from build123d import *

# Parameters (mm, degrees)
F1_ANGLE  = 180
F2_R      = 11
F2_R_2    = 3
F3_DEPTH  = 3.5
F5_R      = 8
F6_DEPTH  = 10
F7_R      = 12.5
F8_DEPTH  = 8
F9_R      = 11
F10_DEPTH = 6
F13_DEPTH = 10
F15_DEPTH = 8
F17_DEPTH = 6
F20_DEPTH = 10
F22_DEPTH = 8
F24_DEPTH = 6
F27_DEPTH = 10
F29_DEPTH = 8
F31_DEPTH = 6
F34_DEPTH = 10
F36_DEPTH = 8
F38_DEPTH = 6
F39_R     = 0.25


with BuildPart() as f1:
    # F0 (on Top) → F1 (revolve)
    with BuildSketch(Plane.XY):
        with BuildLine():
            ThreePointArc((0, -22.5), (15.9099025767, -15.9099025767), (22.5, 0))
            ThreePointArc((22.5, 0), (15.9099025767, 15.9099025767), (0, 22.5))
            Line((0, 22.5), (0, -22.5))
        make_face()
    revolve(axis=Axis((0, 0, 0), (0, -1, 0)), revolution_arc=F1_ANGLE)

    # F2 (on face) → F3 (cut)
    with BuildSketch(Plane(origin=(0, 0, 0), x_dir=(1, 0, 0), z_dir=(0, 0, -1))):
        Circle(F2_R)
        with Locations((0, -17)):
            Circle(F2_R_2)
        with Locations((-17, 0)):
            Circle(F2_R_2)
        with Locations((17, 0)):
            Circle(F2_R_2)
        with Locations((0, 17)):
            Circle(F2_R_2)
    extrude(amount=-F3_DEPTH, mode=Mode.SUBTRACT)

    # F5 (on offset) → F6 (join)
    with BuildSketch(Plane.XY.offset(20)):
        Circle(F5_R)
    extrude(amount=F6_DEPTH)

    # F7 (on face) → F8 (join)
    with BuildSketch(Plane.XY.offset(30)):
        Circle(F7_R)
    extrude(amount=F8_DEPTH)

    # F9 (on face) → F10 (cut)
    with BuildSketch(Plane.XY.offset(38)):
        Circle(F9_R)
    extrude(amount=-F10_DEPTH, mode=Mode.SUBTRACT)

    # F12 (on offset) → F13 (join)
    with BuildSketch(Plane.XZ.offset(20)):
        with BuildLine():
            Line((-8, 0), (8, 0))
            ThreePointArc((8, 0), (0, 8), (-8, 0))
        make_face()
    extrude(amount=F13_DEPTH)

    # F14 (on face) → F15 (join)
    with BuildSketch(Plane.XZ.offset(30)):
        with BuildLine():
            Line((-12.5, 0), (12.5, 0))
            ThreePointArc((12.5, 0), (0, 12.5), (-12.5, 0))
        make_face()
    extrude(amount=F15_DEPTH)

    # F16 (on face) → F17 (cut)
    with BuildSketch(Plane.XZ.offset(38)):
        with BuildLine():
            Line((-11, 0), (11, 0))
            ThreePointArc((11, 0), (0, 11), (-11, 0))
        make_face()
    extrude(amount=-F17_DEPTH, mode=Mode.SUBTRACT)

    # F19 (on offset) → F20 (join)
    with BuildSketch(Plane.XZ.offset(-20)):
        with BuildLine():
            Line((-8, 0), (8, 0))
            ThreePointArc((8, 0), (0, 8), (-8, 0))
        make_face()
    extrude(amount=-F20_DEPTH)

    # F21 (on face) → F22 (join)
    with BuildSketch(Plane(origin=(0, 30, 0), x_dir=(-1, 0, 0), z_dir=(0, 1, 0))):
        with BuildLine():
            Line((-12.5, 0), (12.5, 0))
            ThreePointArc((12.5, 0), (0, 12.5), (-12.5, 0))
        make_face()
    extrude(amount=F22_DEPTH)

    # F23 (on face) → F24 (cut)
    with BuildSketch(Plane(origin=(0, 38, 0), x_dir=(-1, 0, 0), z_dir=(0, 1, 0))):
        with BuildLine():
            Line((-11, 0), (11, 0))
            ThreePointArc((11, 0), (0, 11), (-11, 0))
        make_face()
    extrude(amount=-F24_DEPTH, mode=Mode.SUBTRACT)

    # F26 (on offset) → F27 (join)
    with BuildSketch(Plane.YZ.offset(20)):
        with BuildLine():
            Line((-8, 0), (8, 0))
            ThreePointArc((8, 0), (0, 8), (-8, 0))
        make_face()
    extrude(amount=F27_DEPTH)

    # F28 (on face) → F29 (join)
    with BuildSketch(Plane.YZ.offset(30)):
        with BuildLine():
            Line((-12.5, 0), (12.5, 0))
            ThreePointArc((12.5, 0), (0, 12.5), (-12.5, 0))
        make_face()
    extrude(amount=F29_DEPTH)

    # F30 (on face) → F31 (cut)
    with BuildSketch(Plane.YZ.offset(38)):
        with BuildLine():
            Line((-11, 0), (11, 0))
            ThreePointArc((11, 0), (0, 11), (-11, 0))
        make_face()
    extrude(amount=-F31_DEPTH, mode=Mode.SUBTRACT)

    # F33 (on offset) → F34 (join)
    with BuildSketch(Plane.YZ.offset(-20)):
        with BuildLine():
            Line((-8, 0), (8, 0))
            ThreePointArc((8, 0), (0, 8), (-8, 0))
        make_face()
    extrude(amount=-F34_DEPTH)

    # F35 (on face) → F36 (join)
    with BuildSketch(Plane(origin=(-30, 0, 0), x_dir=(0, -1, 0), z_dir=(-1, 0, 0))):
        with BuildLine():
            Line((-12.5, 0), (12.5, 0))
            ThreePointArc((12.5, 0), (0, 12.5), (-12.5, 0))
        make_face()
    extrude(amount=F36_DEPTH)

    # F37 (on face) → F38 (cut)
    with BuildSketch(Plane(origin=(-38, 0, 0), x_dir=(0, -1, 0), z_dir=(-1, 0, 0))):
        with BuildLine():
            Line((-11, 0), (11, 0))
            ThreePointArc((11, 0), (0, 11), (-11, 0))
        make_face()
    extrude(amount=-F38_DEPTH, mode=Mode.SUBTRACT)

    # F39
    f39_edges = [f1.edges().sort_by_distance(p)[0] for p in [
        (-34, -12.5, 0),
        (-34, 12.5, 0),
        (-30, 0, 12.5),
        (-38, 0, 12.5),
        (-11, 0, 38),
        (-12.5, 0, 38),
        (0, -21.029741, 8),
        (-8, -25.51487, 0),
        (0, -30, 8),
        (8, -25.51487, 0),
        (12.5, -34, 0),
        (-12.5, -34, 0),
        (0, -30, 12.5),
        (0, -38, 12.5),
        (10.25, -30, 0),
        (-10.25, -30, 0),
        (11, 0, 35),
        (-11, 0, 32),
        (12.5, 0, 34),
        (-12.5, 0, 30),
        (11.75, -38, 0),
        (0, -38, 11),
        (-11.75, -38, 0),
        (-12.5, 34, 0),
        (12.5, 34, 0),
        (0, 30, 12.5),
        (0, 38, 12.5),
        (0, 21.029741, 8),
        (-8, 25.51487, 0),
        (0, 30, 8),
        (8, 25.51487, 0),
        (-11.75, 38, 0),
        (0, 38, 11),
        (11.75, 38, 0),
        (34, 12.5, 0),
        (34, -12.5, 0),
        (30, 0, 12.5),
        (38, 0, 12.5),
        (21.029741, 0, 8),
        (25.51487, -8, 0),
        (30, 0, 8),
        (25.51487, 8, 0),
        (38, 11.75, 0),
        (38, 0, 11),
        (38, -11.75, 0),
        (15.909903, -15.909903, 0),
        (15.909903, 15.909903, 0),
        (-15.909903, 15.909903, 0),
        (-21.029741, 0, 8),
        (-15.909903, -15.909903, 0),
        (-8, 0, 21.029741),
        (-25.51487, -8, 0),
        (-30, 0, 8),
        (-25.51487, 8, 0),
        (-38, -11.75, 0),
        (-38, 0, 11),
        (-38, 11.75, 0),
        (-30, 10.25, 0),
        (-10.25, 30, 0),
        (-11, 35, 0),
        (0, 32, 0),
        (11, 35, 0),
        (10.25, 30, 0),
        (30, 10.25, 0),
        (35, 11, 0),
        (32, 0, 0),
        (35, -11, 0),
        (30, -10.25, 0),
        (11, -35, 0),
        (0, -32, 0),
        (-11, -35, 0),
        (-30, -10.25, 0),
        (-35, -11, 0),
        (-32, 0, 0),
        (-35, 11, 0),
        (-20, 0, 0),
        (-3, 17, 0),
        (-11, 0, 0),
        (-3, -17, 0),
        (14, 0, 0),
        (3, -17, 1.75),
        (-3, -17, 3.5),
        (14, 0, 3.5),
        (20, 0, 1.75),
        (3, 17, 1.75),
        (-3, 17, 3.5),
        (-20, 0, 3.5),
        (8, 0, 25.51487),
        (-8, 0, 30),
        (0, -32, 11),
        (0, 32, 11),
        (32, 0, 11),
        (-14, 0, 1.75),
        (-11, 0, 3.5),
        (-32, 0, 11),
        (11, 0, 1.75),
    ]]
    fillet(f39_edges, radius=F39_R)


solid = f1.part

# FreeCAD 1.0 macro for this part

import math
import FreeCAD as App
import Part
import Sketcher

doc = App.newDocument("Part")
body = doc.addObject("PartDesign::Body", "Body")

# Sketch on XY plane
sketch1 = doc.addObject("Sketcher::SketchObject", "Sketch")
body.addObject(sketch1)
sketch1.AttachmentSupport = (doc.XY_Plane, [""])
sketch1.MapMode = "FlatFace"
sketch1.addGeometry(Part.ArcOfCircle(Part.Circle(App.Vector(0, 0, 0), App.Vector(0, 0, 1), 22.5), math.radians(-90), math.radians(90)), False)
sketch1.addGeometry(Part.LineSegment(App.Vector(0, 22.5, 0), App.Vector(0, -22.5, 0)), False)
sketch1.addConstraint(Sketcher.Constraint("Coincident", 0, 1, 1, 2))
sketch1.addConstraint(Sketcher.Constraint("Coincident", 1, 1, 0, 2))
sketch1.addConstraint(Sketcher.Constraint("Vertical", 1))
sketch1.addConstraint(Sketcher.Constraint("Coincident", 0, 3, -1, 1))
sketch1.addConstraint(Sketcher.Constraint("PointOnObject", 0, 1, -2))
sketch1.addConstraint(Sketcher.Constraint("Radius", 0, 22.5))
revolution = doc.addObject("PartDesign::Revolution", "Revolution")
body.addObject(revolution)
revolution.Profile = sketch1
revolution.ReferenceAxis = (sketch1, ["V_Axis"])
revolution.Angle = 180
revolution.Reversed = True

# Sketch on XY plane
sketch2 = doc.addObject("Sketcher::SketchObject", "Sketch001")
body.addObject(sketch2)
sketch2.AttachmentSupport = (doc.XY_Plane, [""])
sketch2.MapMode = "FlatFace"
sketch2.addGeometry(Part.Circle(App.Vector(0, 0, 0), App.Vector(0, 0, 1), 11), False)
sketch2.addGeometry(Part.Circle(App.Vector(0, 17, 0), App.Vector(0, 0, 1), 3), False)
sketch2.addGeometry(Part.Circle(App.Vector(-17, 0, 0), App.Vector(0, 0, 1), 3), False)
sketch2.addGeometry(Part.Circle(App.Vector(17, 0, 0), App.Vector(0, 0, 1), 3), False)
sketch2.addGeometry(Part.Circle(App.Vector(0, -17, 0), App.Vector(0, 0, 1), 3), False)
sketch2.addConstraint(Sketcher.Constraint("Coincident", 0, 3, -1, 1))
sketch2.addConstraint(Sketcher.Constraint("Equal", 1, 2))
sketch2.addConstraint(Sketcher.Constraint("Equal", 2, 3))
sketch2.addConstraint(Sketcher.Constraint("Equal", 3, 4))
sketch2.addConstraint(Sketcher.Constraint("Symmetric", 2, 3, 3, 3, -1, 1))
sketch2.addConstraint(Sketcher.Constraint("Symmetric", 1, 3, 4, 3, -1, 1))
sketch2.addConstraint(Sketcher.Constraint("PointOnObject", 1, 3, -2))
sketch2.addConstraint(Sketcher.Constraint("PointOnObject", 2, 3, -1))
sketch2.addConstraint(Sketcher.Constraint("Diameter", 0, 22.0))
sketch2.addConstraint(Sketcher.Constraint("Diameter", 1, 6.0))
sketch2.addConstraint(Sketcher.Constraint("DistanceY", -1, 1, 1, 3, 17.0))
sketch2.addConstraint(Sketcher.Constraint("DistanceX", 2, 3, -1, 1, 17.0))
pocket1 = doc.addObject("PartDesign::Pocket", "Pocket")
body.addObject(pocket1)
pocket1.Profile = sketch2
pocket1.Length = 3.5
pocket1.Reversed = True

# Sketch on XY plane
sketch3 = doc.addObject("Sketcher::SketchObject", "Sketch002")
body.addObject(sketch3)
sketch3.AttachmentSupport = (doc.XY_Plane, [""])
sketch3.MapMode = "FlatFace"
sketch3.AttachmentOffset = App.Placement(App.Vector(0, 0, 20), App.Rotation())
sketch3.addGeometry(Part.Circle(App.Vector(0, 0, 0), App.Vector(0, 0, 1), 8), False)
sketch3.addConstraint(Sketcher.Constraint("Coincident", 0, 3, -1, 1))
sketch3.addConstraint(Sketcher.Constraint("Diameter", 0, 16.0))
pad1 = doc.addObject("PartDesign::Pad", "Pad")
body.addObject(pad1)
pad1.Profile = sketch3
pad1.Length = 10

# Sketch on XY plane
sketch4 = doc.addObject("Sketcher::SketchObject", "Sketch003")
body.addObject(sketch4)
sketch4.AttachmentSupport = (doc.XY_Plane, [""])
sketch4.MapMode = "FlatFace"
sketch4.AttachmentOffset = App.Placement(App.Vector(0, 0, 30), App.Rotation())
sketch4.addGeometry(Part.Circle(App.Vector(0, 0, 0), App.Vector(0, 0, 1), 12.5), False)
sketch4.addConstraint(Sketcher.Constraint("Coincident", 0, 3, -1, 1))
sketch4.addConstraint(Sketcher.Constraint("Diameter", 0, 25.0))
pad2 = doc.addObject("PartDesign::Pad", "Pad001")
body.addObject(pad2)
pad2.Profile = sketch4
pad2.Length = 8

# Sketch on XY plane
sketch5 = doc.addObject("Sketcher::SketchObject", "Sketch004")
body.addObject(sketch5)
sketch5.AttachmentSupport = (doc.XY_Plane, [""])
sketch5.MapMode = "FlatFace"
sketch5.AttachmentOffset = App.Placement(App.Vector(0, 0, 38), App.Rotation())
sketch5.addGeometry(Part.Circle(App.Vector(0, 0, 0), App.Vector(0, 0, 1), 11), False)
sketch5.addConstraint(Sketcher.Constraint("Coincident", 0, 3, -1, 1))
sketch5.addConstraint(Sketcher.Constraint("Diameter", 0, 22.0))
pocket2 = doc.addObject("PartDesign::Pocket", "Pocket001")
body.addObject(pocket2)
pocket2.Profile = sketch5
pocket2.Length = 6

# Sketch on XZ plane
sketch6 = doc.addObject("Sketcher::SketchObject", "Sketch005")
body.addObject(sketch6)
sketch6.AttachmentSupport = (doc.XZ_Plane, [""])
sketch6.MapMode = "FlatFace"
sketch6.AttachmentOffset = App.Placement(App.Vector(0, 0, 20), App.Rotation())
sketch6.addGeometry(Part.LineSegment(App.Vector(-8, 0, 0), App.Vector(8, 0, 0)), False)
sketch6.addGeometry(Part.ArcOfCircle(Part.Circle(App.Vector(0, 0, 0), App.Vector(0, 0, 1), 8), math.radians(0), math.radians(180)), False)
sketch6.addConstraint(Sketcher.Constraint("Coincident", 0, 1, 1, 2))
sketch6.addConstraint(Sketcher.Constraint("Coincident", 1, 1, 0, 2))
sketch6.addConstraint(Sketcher.Constraint("Horizontal", 0))
sketch6.addConstraint(Sketcher.Constraint("Coincident", 1, 3, -1, 1))
sketch6.addConstraint(Sketcher.Constraint("PointOnObject", 0, 1, -1))
sketch6.addConstraint(Sketcher.Constraint("Radius", 1, 8.0))
pad3 = doc.addObject("PartDesign::Pad", "Pad002")
body.addObject(pad3)
pad3.Profile = sketch6
pad3.Length = 10

# Sketch on XZ plane
sketch7 = doc.addObject("Sketcher::SketchObject", "Sketch006")
body.addObject(sketch7)
sketch7.AttachmentSupport = (doc.XZ_Plane, [""])
sketch7.MapMode = "FlatFace"
sketch7.AttachmentOffset = App.Placement(App.Vector(0, 0, 30), App.Rotation())
sketch7.addGeometry(Part.LineSegment(App.Vector(-12.5, 0, 0), App.Vector(12.5, 0, 0)), False)
sketch7.addGeometry(Part.ArcOfCircle(Part.Circle(App.Vector(0, 0, 0), App.Vector(0, 0, 1), 12.5), math.radians(0), math.radians(180)), False)
sketch7.addConstraint(Sketcher.Constraint("Coincident", 0, 1, 1, 2))
sketch7.addConstraint(Sketcher.Constraint("Coincident", 1, 1, 0, 2))
sketch7.addConstraint(Sketcher.Constraint("Horizontal", 0))
sketch7.addConstraint(Sketcher.Constraint("Coincident", 1, 3, -1, 1))
sketch7.addConstraint(Sketcher.Constraint("PointOnObject", 0, 1, -1))
sketch7.addConstraint(Sketcher.Constraint("Radius", 1, 12.5))
pad4 = doc.addObject("PartDesign::Pad", "Pad003")
body.addObject(pad4)
pad4.Profile = sketch7
pad4.Length = 8

# Sketch on XZ plane
sketch8 = doc.addObject("Sketcher::SketchObject", "Sketch007")
body.addObject(sketch8)
sketch8.AttachmentSupport = (doc.XZ_Plane, [""])
sketch8.MapMode = "FlatFace"
sketch8.AttachmentOffset = App.Placement(App.Vector(0, 0, 38), App.Rotation())
sketch8.addGeometry(Part.LineSegment(App.Vector(-11, 0, 0), App.Vector(11, 0, 0)), False)
sketch8.addGeometry(Part.ArcOfCircle(Part.Circle(App.Vector(0, 0, 0), App.Vector(0, 0, 1), 11), math.radians(0), math.radians(180)), False)
sketch8.addConstraint(Sketcher.Constraint("Coincident", 0, 1, 1, 2))
sketch8.addConstraint(Sketcher.Constraint("Coincident", 1, 1, 0, 2))
sketch8.addConstraint(Sketcher.Constraint("Horizontal", 0))
sketch8.addConstraint(Sketcher.Constraint("Coincident", 1, 3, -1, 1))
sketch8.addConstraint(Sketcher.Constraint("PointOnObject", 0, 1, -1))
sketch8.addConstraint(Sketcher.Constraint("Radius", 1, 11.0))
pocket3 = doc.addObject("PartDesign::Pocket", "Pocket002")
body.addObject(pocket3)
pocket3.Profile = sketch8
pocket3.Length = 6

# Sketch on XZ plane
sketch9 = doc.addObject("Sketcher::SketchObject", "Sketch008")
body.addObject(sketch9)
sketch9.AttachmentSupport = (doc.XZ_Plane, [""])
sketch9.MapMode = "FlatFace"
sketch9.AttachmentOffset = App.Placement(App.Vector(0, 0, -20), App.Rotation())
sketch9.addGeometry(Part.LineSegment(App.Vector(-8, 0, 0), App.Vector(8, 0, 0)), False)
sketch9.addGeometry(Part.ArcOfCircle(Part.Circle(App.Vector(0, 0, 0), App.Vector(0, 0, 1), 8), math.radians(0), math.radians(180)), False)
sketch9.addConstraint(Sketcher.Constraint("Coincident", 0, 1, 1, 2))
sketch9.addConstraint(Sketcher.Constraint("Coincident", 1, 1, 0, 2))
sketch9.addConstraint(Sketcher.Constraint("Horizontal", 0))
sketch9.addConstraint(Sketcher.Constraint("Coincident", 1, 3, -1, 1))
sketch9.addConstraint(Sketcher.Constraint("PointOnObject", 0, 1, -1))
sketch9.addConstraint(Sketcher.Constraint("Radius", 1, 8.0))
pad5 = doc.addObject("PartDesign::Pad", "Pad004")
body.addObject(pad5)
pad5.Profile = sketch9
pad5.Length = 10
pad5.Reversed = True

# Sketch on XZ plane
sketch10 = doc.addObject("Sketcher::SketchObject", "Sketch009")
body.addObject(sketch10)
sketch10.AttachmentSupport = (doc.XZ_Plane, [""])
sketch10.MapMode = "FlatFace"
sketch10.AttachmentOffset = App.Placement(App.Vector(0, 0, -30), App.Rotation())
sketch10.addGeometry(Part.LineSegment(App.Vector(12.5, 0, 0), App.Vector(-12.5, 0, 0)), False)
sketch10.addGeometry(Part.ArcOfCircle(Part.Circle(App.Vector(0, 0, 0), App.Vector(0, 0, 1), 12.5), math.radians(0), math.radians(180)), False)
sketch10.addConstraint(Sketcher.Constraint("Coincident", 0, 1, 1, 1))
sketch10.addConstraint(Sketcher.Constraint("Coincident", 1, 2, 0, 2))
sketch10.addConstraint(Sketcher.Constraint("Horizontal", 0))
sketch10.addConstraint(Sketcher.Constraint("Coincident", 1, 3, -1, 1))
sketch10.addConstraint(Sketcher.Constraint("PointOnObject", 0, 1, -1))
sketch10.addConstraint(Sketcher.Constraint("Radius", 1, 12.5))
pad6 = doc.addObject("PartDesign::Pad", "Pad005")
body.addObject(pad6)
pad6.Profile = sketch10
pad6.Length = 8
pad6.Reversed = True

# Sketch on XZ plane
sketch11 = doc.addObject("Sketcher::SketchObject", "Sketch010")
body.addObject(sketch11)
sketch11.AttachmentSupport = (doc.XZ_Plane, [""])
sketch11.MapMode = "FlatFace"
sketch11.AttachmentOffset = App.Placement(App.Vector(0, 0, -38), App.Rotation())
sketch11.addGeometry(Part.LineSegment(App.Vector(11, 0, 0), App.Vector(-11, 0, 0)), False)
sketch11.addGeometry(Part.ArcOfCircle(Part.Circle(App.Vector(0, 0, 0), App.Vector(0, 0, 1), 11), math.radians(0), math.radians(180)), False)
sketch11.addConstraint(Sketcher.Constraint("Coincident", 0, 1, 1, 1))
sketch11.addConstraint(Sketcher.Constraint("Coincident", 1, 2, 0, 2))
sketch11.addConstraint(Sketcher.Constraint("Horizontal", 0))
sketch11.addConstraint(Sketcher.Constraint("Coincident", 1, 3, -1, 1))
sketch11.addConstraint(Sketcher.Constraint("PointOnObject", 0, 1, -1))
sketch11.addConstraint(Sketcher.Constraint("Radius", 1, 11.0))
pocket4 = doc.addObject("PartDesign::Pocket", "Pocket003")
body.addObject(pocket4)
pocket4.Profile = sketch11
pocket4.Length = 6
pocket4.Reversed = True

# Sketch on YZ plane
sketch12 = doc.addObject("Sketcher::SketchObject", "Sketch011")
body.addObject(sketch12)
sketch12.AttachmentSupport = (doc.YZ_Plane, [""])
sketch12.MapMode = "FlatFace"
sketch12.AttachmentOffset = App.Placement(App.Vector(0, 0, 20), App.Rotation())
sketch12.addGeometry(Part.LineSegment(App.Vector(-8, 0, 0), App.Vector(8, 0, 0)), False)
sketch12.addGeometry(Part.ArcOfCircle(Part.Circle(App.Vector(0, 0, 0), App.Vector(0, 0, 1), 8), math.radians(0), math.radians(180)), False)
sketch12.addConstraint(Sketcher.Constraint("Coincident", 0, 1, 1, 2))
sketch12.addConstraint(Sketcher.Constraint("Coincident", 1, 1, 0, 2))
sketch12.addConstraint(Sketcher.Constraint("Horizontal", 0))
sketch12.addConstraint(Sketcher.Constraint("Coincident", 1, 3, -1, 1))
sketch12.addConstraint(Sketcher.Constraint("PointOnObject", 0, 1, -1))
sketch12.addConstraint(Sketcher.Constraint("Radius", 1, 8.0))
pad7 = doc.addObject("PartDesign::Pad", "Pad006")
body.addObject(pad7)
pad7.Profile = sketch12
pad7.Length = 10

# Sketch on YZ plane
sketch13 = doc.addObject("Sketcher::SketchObject", "Sketch012")
body.addObject(sketch13)
sketch13.AttachmentSupport = (doc.YZ_Plane, [""])
sketch13.MapMode = "FlatFace"
sketch13.AttachmentOffset = App.Placement(App.Vector(0, 0, 30), App.Rotation())
sketch13.addGeometry(Part.LineSegment(App.Vector(-12.5, 0, 0), App.Vector(12.5, 0, 0)), False)
sketch13.addGeometry(Part.ArcOfCircle(Part.Circle(App.Vector(0, 0, 0), App.Vector(0, 0, 1), 12.5), math.radians(0), math.radians(180)), False)
sketch13.addConstraint(Sketcher.Constraint("Coincident", 0, 1, 1, 2))
sketch13.addConstraint(Sketcher.Constraint("Coincident", 1, 1, 0, 2))
sketch13.addConstraint(Sketcher.Constraint("Horizontal", 0))
sketch13.addConstraint(Sketcher.Constraint("Coincident", 1, 3, -1, 1))
sketch13.addConstraint(Sketcher.Constraint("PointOnObject", 0, 1, -1))
sketch13.addConstraint(Sketcher.Constraint("Radius", 1, 12.5))
pad8 = doc.addObject("PartDesign::Pad", "Pad007")
body.addObject(pad8)
pad8.Profile = sketch13
pad8.Length = 8

# Sketch on YZ plane
sketch14 = doc.addObject("Sketcher::SketchObject", "Sketch013")
body.addObject(sketch14)
sketch14.AttachmentSupport = (doc.YZ_Plane, [""])
sketch14.MapMode = "FlatFace"
sketch14.AttachmentOffset = App.Placement(App.Vector(0, 0, 38), App.Rotation())
sketch14.addGeometry(Part.LineSegment(App.Vector(-11, 0, 0), App.Vector(11, 0, 0)), False)
sketch14.addGeometry(Part.ArcOfCircle(Part.Circle(App.Vector(0, 0, 0), App.Vector(0, 0, 1), 11), math.radians(0), math.radians(180)), False)
sketch14.addConstraint(Sketcher.Constraint("Coincident", 0, 1, 1, 2))
sketch14.addConstraint(Sketcher.Constraint("Coincident", 1, 1, 0, 2))
sketch14.addConstraint(Sketcher.Constraint("Horizontal", 0))
sketch14.addConstraint(Sketcher.Constraint("Coincident", 1, 3, -1, 1))
sketch14.addConstraint(Sketcher.Constraint("PointOnObject", 0, 1, -1))
sketch14.addConstraint(Sketcher.Constraint("Radius", 1, 11.0))
pocket5 = doc.addObject("PartDesign::Pocket", "Pocket004")
body.addObject(pocket5)
pocket5.Profile = sketch14
pocket5.Length = 6

# Sketch on YZ plane
sketch15 = doc.addObject("Sketcher::SketchObject", "Sketch014")
body.addObject(sketch15)
sketch15.AttachmentSupport = (doc.YZ_Plane, [""])
sketch15.MapMode = "FlatFace"
sketch15.AttachmentOffset = App.Placement(App.Vector(0, 0, -20), App.Rotation())
sketch15.addGeometry(Part.LineSegment(App.Vector(-8, 0, 0), App.Vector(8, 0, 0)), False)
sketch15.addGeometry(Part.ArcOfCircle(Part.Circle(App.Vector(0, 0, 0), App.Vector(0, 0, 1), 8), math.radians(0), math.radians(180)), False)
sketch15.addConstraint(Sketcher.Constraint("Coincident", 0, 1, 1, 2))
sketch15.addConstraint(Sketcher.Constraint("Coincident", 1, 1, 0, 2))
sketch15.addConstraint(Sketcher.Constraint("Horizontal", 0))
sketch15.addConstraint(Sketcher.Constraint("Coincident", 1, 3, -1, 1))
sketch15.addConstraint(Sketcher.Constraint("PointOnObject", 0, 1, -1))
sketch15.addConstraint(Sketcher.Constraint("Radius", 1, 8.0))
pad9 = doc.addObject("PartDesign::Pad", "Pad008")
body.addObject(pad9)
pad9.Profile = sketch15
pad9.Length = 10
pad9.Reversed = True

# Sketch on YZ plane
sketch16 = doc.addObject("Sketcher::SketchObject", "Sketch015")
body.addObject(sketch16)
sketch16.AttachmentSupport = (doc.YZ_Plane, [""])
sketch16.MapMode = "FlatFace"
sketch16.AttachmentOffset = App.Placement(App.Vector(0, 0, -30), App.Rotation())
sketch16.addGeometry(Part.LineSegment(App.Vector(12.5, 0, 0), App.Vector(-12.5, 0, 0)), False)
sketch16.addGeometry(Part.ArcOfCircle(Part.Circle(App.Vector(0, 0, 0), App.Vector(0, 0, 1), 12.5), math.radians(0), math.radians(180)), False)
sketch16.addConstraint(Sketcher.Constraint("Coincident", 0, 1, 1, 1))
sketch16.addConstraint(Sketcher.Constraint("Coincident", 1, 2, 0, 2))
sketch16.addConstraint(Sketcher.Constraint("Horizontal", 0))
sketch16.addConstraint(Sketcher.Constraint("Coincident", 1, 3, -1, 1))
sketch16.addConstraint(Sketcher.Constraint("PointOnObject", 0, 1, -1))
sketch16.addConstraint(Sketcher.Constraint("Radius", 1, 12.5))
pad10 = doc.addObject("PartDesign::Pad", "Pad009")
body.addObject(pad10)
pad10.Profile = sketch16
pad10.Length = 8
pad10.Reversed = True

# Sketch on YZ plane
sketch17 = doc.addObject("Sketcher::SketchObject", "Sketch016")
body.addObject(sketch17)
sketch17.AttachmentSupport = (doc.YZ_Plane, [""])
sketch17.MapMode = "FlatFace"
sketch17.AttachmentOffset = App.Placement(App.Vector(0, 0, -38), App.Rotation())
sketch17.addGeometry(Part.LineSegment(App.Vector(11, 0, 0), App.Vector(-11, 0, 0)), False)
sketch17.addGeometry(Part.ArcOfCircle(Part.Circle(App.Vector(0, 0, 0), App.Vector(0, 0, 1), 11), math.radians(0), math.radians(180)), False)
sketch17.addConstraint(Sketcher.Constraint("Coincident", 0, 1, 1, 1))
sketch17.addConstraint(Sketcher.Constraint("Coincident", 1, 2, 0, 2))
sketch17.addConstraint(Sketcher.Constraint("Horizontal", 0))
sketch17.addConstraint(Sketcher.Constraint("Coincident", 1, 3, -1, 1))
sketch17.addConstraint(Sketcher.Constraint("PointOnObject", 0, 1, -1))
sketch17.addConstraint(Sketcher.Constraint("Radius", 1, 11.0))
pocket6 = doc.addObject("PartDesign::Pocket", "Pocket005")
body.addObject(pocket6)
pocket6.Profile = sketch17
pocket6.Length = 6
pocket6.Reversed = True
doc.recompute()

fillet = doc.addObject("PartDesign::Fillet", "Fillet")
body.addObject(fillet)
fillet.Base = (pocket6, ["Edge1"])
fillet.UseAllEdges = True
fillet.Radius = 0.25

doc.recompute()
